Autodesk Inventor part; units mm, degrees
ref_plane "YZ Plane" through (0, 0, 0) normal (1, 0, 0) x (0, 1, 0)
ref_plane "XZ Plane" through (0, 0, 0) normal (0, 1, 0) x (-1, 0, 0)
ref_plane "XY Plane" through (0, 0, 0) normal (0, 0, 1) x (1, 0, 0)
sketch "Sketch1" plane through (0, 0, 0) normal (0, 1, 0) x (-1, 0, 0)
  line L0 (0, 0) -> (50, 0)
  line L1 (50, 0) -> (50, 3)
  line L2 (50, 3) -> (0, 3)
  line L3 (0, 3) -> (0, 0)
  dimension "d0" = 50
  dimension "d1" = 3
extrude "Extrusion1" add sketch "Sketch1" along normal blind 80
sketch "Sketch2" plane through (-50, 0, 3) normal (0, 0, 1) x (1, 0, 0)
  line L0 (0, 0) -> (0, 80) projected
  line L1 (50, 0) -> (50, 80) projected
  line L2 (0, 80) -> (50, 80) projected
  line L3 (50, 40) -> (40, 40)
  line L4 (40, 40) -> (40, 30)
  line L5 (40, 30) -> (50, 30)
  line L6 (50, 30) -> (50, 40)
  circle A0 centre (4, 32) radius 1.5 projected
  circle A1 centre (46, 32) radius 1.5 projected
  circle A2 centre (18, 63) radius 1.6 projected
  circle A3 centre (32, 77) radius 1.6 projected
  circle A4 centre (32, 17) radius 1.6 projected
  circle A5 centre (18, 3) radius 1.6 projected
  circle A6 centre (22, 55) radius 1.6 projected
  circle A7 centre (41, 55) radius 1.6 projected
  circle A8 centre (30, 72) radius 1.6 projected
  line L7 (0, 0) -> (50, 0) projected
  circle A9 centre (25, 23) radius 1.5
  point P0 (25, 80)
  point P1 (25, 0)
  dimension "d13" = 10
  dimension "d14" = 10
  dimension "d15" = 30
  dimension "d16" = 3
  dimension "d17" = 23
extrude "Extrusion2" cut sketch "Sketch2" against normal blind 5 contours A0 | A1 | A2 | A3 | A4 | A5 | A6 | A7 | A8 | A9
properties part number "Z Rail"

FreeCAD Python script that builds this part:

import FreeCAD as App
import Part
import Sketcher
from FreeCAD import Vector

doc = App.newDocument("Part")
body = doc.addObject("PartDesign::Body", "Body")

sketch1 = doc.addObject("Sketcher::SketchObject", "Sketch")
body.addObject(sketch1)
sketch1.AttachmentSupport = (doc.XZ_Plane, [""])
sketch1.MapMode = "FlatFace"
sketch1.addGeometry([
    Part.LineSegment(Vector(0, 3, 0), Vector(0, 0, 0)),
    Part.LineSegment(Vector(0, 0, 0), Vector(-50, 0, 0)),
    Part.LineSegment(Vector(-50, 0, 0), Vector(-50, 3, 0)),
    Part.LineSegment(Vector(-50, 3, 0), Vector(0, 3, 0)),
], False)
sketch1.addConstraint([
    Sketcher.Constraint("Coincident", 0, 2, 1, 1),
    Sketcher.Constraint("Coincident", 1, 2, 2, 1),
    Sketcher.Constraint("Coincident", 2, 2, 3, 1),
    Sketcher.Constraint("Coincident", 3, 2, 0, 1),
    Sketcher.Constraint("Vertical", 0),
    Sketcher.Constraint("Horizontal", 1),
    Sketcher.Constraint("Vertical", 2),
    Sketcher.Constraint("Horizontal", 3),
    Sketcher.Constraint("Coincident", 0, 2, -1, 1),
    Sketcher.Constraint("DistanceX", 1, 2, 1, 1, 50.0),
    Sketcher.Constraint("DistanceY", 0, 2, 0, 1, 3.0),
])
pad1 = doc.addObject("PartDesign::Pad", "Pad")
body.addObject(pad1)
pad1.Profile = sketch1
pad1.Length = 80
pad1.Reversed = True

sketch2 = doc.addObject("Sketcher::SketchObject", "Sketch001")
body.addObject(sketch2)
sketch2.AttachmentSupport = (doc.XY_Plane, [""])
sketch2.MapMode = "FlatFace"
sketch2.AttachmentOffset = App.Placement(Vector(0, 0, 3), App.Rotation())
sketch2.addGeometry([
    Part.Circle(Vector(-46, 32, 0), Vector(0, 0, 1), 1.5),
    Part.Circle(Vector(-4, 32, 0), Vector(0, 0, 1), 1.5),
    Part.Circle(Vector(-32, 63, 0), Vector(0, 0, 1), 1.6),
    Part.Circle(Vector(-18, 77, 0), Vector(0, 0, 1), 1.6),
    Part.Circle(Vector(-18, 17, 0), Vector(0, 0, 1), 1.6),
    Part.Circle(Vector(-32, 3, 0), Vector(0, 0, 1), 1.6),
    Part.Circle(Vector(-28, 55, 0), Vector(0, 0, 1), 1.6),
    Part.Circle(Vector(-9, 55, 0), Vector(0, 0, 1), 1.6),
    Part.Circle(Vector(-20, 72, 0), Vector(0, 0, 1), 1.6),
    Part.Circle(Vector(-25, 23, 0), Vector(0, 0, 1), 1.5),
], False)
sketch2.addConstraint([
    Sketcher.Constraint("Equal", 0, 1),
    Sketcher.Constraint("Equal", 2, 3),
    Sketcher.Constraint("Equal", 3, 4),
    Sketcher.Constraint("Equal", 4, 5),
    Sketcher.Constraint("Equal", 5, 6),
    Sketcher.Constraint("Equal", 6, 7),
    Sketcher.Constraint("Equal", 7, 8),
    Sketcher.Constraint("Equal", 1, 9),
    Sketcher.Constraint("Horizontal", 0, 3, 1, 3),
    Sketcher.Constraint("Horizontal", 6, 3, 7, 3),
    Sketcher.Constraint("Vertical", 3, 3, 4, 3),
    Sketcher.Constraint("Vertical", 2, 3, 5, 3),
    Sketcher.Constraint("Diameter", 0, 3.0),
    Sketcher.Constraint("DistanceY", -1, 1, 5, 3, 3.0),
    Sketcher.Constraint("DistanceY", -1, 1, 9, 3, 23.0),
    Sketcher.Constraint("DistanceX", 6, 3, 3, 3, 10.0),
    Sketcher.Constraint("DistanceY", 0, 3, 6, 3, 23.0),
    Sketcher.Constraint("DistanceX", 2, 3, 7, 3, 23.0),
    Sketcher.Constraint("DistanceX", 6, 3, 9, 3, 3.0),
    Sketcher.Constraint("Diameter", 2, 3.2),
    Sketcher.Constraint("DistanceX", 0, 3, -1, 1, 46.0),
    Sketcher.Constraint("DistanceY", -1, 1, 0, 3, 32.0),
    Sketcher.Constraint("DistanceX", 1, 3, -1, 1, 4.0),
    Sketcher.Constraint("DistanceX", 2, 3, -1, 1, 32.0),
    Sketcher.Constraint("DistanceY", -1, 1, 2, 3, 63.0),
    Sketcher.Constraint("DistanceX", 3, 3, -1, 1, 18.0),
    Sketcher.Constraint("DistanceY", -1, 1, 3, 3, 77.0),
    Sketcher.Constraint("DistanceY", -1, 1, 4, 3, 17.0),
    Sketcher.Constraint("DistanceX", 8, 3, -1, 1, 20.0),
    Sketcher.Constraint("DistanceY", -1, 1, 8, 3, 72.0),
])
pocket1 = doc.addObject("PartDesign::Pocket", "Pocket")
body.addObject(pocket1)
pocket1.Profile = sketch2
pocket1.Length = 5

doc.recompute()
